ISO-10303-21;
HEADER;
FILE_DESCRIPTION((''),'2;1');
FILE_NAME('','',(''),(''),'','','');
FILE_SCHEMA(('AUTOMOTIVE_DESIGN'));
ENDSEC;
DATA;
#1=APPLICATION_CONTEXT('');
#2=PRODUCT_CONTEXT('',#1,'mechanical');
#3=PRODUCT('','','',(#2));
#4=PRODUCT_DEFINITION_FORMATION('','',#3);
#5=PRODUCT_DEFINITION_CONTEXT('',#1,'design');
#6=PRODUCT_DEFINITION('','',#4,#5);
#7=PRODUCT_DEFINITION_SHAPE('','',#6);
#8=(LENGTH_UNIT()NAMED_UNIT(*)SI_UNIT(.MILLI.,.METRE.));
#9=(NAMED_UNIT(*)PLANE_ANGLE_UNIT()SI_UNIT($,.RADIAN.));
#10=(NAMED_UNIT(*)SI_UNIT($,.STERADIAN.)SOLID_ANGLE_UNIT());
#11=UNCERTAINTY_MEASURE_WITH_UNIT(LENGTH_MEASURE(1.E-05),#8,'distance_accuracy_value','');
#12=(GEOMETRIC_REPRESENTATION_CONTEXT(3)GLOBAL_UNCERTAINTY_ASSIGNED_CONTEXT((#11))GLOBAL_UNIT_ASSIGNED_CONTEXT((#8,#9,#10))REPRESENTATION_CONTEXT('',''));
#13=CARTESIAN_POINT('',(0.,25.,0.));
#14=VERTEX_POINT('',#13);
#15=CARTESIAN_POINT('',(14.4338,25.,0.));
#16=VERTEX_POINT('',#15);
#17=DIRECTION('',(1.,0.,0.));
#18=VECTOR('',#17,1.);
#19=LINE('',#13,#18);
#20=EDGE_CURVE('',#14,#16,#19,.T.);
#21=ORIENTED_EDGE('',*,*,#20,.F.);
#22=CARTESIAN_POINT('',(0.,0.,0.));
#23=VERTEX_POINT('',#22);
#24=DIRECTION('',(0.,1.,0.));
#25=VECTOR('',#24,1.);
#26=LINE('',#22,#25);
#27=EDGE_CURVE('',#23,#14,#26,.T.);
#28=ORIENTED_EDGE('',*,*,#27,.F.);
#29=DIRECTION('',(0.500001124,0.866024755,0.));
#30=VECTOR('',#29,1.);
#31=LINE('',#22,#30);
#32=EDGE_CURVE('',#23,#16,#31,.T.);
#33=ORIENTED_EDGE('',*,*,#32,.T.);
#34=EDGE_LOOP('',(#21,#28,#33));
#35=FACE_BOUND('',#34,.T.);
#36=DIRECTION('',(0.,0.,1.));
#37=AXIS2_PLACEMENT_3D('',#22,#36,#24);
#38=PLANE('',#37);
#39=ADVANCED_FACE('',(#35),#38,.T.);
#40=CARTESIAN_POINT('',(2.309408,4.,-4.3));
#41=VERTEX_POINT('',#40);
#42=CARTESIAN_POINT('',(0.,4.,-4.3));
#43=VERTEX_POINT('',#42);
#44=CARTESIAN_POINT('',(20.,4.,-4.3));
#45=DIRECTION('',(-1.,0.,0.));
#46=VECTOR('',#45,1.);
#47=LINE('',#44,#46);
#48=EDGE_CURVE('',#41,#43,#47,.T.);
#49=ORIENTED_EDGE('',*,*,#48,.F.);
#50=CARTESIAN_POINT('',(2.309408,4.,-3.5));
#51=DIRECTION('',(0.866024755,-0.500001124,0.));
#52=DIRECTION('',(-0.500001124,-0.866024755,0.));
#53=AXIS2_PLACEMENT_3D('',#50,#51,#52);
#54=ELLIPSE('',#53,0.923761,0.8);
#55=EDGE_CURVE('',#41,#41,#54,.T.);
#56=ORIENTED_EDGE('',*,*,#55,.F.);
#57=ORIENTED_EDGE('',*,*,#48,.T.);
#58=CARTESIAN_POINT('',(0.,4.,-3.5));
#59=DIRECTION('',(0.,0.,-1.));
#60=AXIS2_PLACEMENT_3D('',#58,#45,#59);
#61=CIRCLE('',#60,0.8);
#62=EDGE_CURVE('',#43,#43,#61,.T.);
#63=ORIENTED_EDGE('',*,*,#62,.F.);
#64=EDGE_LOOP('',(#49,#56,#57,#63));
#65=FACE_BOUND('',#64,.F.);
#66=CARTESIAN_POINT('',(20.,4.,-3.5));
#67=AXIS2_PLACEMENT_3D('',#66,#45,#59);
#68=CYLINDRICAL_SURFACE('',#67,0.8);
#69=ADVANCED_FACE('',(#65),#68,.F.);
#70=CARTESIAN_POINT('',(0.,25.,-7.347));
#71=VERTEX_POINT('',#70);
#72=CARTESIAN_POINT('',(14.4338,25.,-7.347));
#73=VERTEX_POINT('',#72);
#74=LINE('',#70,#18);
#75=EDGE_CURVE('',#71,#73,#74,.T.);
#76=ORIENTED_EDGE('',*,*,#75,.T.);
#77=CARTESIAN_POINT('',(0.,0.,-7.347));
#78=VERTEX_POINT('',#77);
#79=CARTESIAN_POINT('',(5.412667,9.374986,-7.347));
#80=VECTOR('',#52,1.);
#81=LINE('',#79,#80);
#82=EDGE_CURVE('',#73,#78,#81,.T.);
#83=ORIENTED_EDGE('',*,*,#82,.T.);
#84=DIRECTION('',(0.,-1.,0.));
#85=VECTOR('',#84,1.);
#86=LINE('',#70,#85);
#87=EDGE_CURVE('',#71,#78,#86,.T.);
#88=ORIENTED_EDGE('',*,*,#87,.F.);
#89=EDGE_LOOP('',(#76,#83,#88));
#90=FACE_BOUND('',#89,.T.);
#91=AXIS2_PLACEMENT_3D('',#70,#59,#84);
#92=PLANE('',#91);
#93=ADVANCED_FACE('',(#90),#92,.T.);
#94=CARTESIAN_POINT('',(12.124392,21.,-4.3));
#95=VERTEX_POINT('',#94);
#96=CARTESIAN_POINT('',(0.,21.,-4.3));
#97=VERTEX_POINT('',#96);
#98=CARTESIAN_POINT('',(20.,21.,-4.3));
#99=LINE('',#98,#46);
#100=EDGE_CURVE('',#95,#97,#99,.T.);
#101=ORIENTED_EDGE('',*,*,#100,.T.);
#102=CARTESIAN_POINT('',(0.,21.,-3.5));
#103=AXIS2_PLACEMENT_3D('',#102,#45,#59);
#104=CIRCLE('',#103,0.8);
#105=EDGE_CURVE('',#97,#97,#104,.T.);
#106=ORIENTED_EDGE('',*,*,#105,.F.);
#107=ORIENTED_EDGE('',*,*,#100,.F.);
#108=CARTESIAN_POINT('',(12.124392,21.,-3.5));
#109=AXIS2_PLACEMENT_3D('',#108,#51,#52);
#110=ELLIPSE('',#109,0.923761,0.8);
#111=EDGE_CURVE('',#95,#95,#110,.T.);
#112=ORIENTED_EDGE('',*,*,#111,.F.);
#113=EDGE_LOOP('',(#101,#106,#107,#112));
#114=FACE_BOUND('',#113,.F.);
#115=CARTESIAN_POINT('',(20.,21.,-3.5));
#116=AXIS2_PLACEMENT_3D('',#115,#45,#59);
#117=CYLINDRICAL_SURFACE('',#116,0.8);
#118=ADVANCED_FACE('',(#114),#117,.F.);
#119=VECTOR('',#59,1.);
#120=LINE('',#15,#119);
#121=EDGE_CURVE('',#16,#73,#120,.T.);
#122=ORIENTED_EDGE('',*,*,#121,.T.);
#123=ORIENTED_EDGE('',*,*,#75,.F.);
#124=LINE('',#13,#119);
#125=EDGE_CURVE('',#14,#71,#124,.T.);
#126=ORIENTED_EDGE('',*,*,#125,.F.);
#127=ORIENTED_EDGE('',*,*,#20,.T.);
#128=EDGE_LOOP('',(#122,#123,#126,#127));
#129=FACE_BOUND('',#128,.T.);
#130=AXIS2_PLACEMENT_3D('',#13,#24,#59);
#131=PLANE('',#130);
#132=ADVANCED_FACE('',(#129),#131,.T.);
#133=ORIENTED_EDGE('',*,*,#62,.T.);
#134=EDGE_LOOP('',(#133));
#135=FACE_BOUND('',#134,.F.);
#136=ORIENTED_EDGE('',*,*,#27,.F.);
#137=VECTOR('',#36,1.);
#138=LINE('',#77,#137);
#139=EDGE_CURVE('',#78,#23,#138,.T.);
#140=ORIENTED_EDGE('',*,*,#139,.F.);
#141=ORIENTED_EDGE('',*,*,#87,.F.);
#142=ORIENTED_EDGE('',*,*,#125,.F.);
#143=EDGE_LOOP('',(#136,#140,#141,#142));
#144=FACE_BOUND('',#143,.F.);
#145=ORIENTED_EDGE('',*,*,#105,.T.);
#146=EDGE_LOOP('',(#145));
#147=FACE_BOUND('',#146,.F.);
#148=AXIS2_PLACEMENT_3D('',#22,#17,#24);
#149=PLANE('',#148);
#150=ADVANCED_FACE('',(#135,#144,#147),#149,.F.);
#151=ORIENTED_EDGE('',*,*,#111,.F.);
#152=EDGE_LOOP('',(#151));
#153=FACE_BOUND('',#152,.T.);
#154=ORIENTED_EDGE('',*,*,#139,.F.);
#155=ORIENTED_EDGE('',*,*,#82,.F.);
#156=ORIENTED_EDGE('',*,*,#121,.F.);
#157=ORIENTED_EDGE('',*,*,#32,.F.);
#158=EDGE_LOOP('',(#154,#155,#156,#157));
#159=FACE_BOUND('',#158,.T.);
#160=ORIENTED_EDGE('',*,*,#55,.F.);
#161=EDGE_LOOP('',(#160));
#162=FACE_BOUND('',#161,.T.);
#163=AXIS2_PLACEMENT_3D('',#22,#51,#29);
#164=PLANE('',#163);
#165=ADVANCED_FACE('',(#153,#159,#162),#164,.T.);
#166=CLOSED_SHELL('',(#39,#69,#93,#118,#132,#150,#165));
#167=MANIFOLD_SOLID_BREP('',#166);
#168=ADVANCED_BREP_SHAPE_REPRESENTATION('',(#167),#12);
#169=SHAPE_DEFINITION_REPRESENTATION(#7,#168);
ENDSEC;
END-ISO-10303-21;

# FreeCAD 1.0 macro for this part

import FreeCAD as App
import Part
import Sketcher
Q = App.Units.Quantity

doc = App.newDocument("Part")
params = doc.addObject("Spreadsheet::Sheet", "Params")
for row, (alias, value) in enumerate([
    ("sketch1_width", "25 mm"),
    ("pad1_length", "20 mm"),
    ("sketch2_diameter", "1.6 mm"),
    ("hole_diameter", "1.6 mm"),
    ("sketch3_width", "20 mm"),
    ("sketch3_height", "25 mm"),
    ("pocket1_length", "10 mm"),
], start=1):
    params.set(f"A{row}", alias)
    params.set(f"B{row}", "=" + value)
    params.setAlias(f"B{row}", alias)

body = doc.addObject("PartDesign::Body", "Body")

# Sketch on YZ plane
sketch1 = doc.addObject("Sketcher::SketchObject", "Sketch")
body.addObject(sketch1)
sketch1.AttachmentSupport = (doc.YZ_Plane, [""])
sketch1.MapMode = "FlatFace"
sketch1.addGeometry([
    Part.LineSegment(App.Vector(25, 0, 0), App.Vector(0, 0, 0)),
    Part.LineSegment(App.Vector(0, 0, 0), App.Vector(0, -7.347, 0)),
    Part.LineSegment(App.Vector(0, -7.347, 0), App.Vector(25, -7.347, 0)),
    Part.LineSegment(App.Vector(25, -7.347, 0), App.Vector(25, 0, 0)),
], False)
sketch1.addConstraint([
    Sketcher.Constraint("Coincident", 0, 2, 1, 1),
    Sketcher.Constraint("Coincident", 1, 2, 2, 1),
    Sketcher.Constraint("Coincident", 2, 2, 3, 1),
    Sketcher.Constraint("Coincident", 3, 2, 0, 1),
    Sketcher.Constraint("Horizontal", 0),
    Sketcher.Constraint("Vertical", 1),
    Sketcher.Constraint("Horizontal", 2),
    Sketcher.Constraint("Vertical", 3),
    Sketcher.Constraint("Coincident", 0, 2, -1, 1),
    Sketcher.Constraint("DistanceX", 0, 2, 0, 1, Q("25 mm")),
    Sketcher.Constraint("DistanceY", 1, 2, 1, 1, Q("7.347 mm")),
])
sketch1.setExpression("Constraints[9]", "Params.sketch1_width")
pad1 = doc.addObject("PartDesign::Pad", "Pad")
body.addObject(pad1)
pad1.Profile = sketch1
pad1.setExpression("Length", "Params.pad1_length")

# Sketch on YZ plane
sketch2 = doc.addObject("Sketcher::SketchObject", "Sketch001")
body.addObject(sketch2)
sketch2.AttachmentSupport = (doc.YZ_Plane, [""])
sketch2.MapMode = "FlatFace"
sketch2.AttachmentOffset = App.Placement(App.Vector(0, 0, 20), App.Rotation())
sketch2.addGeometry([
    Part.Circle(App.Vector(4, -3.5, 0), App.Vector(0, 0, 1), 0.8),
    Part.Circle(App.Vector(21, -3.5, 0), App.Vector(0, 0, 1), 0.8),
], False)
sketch2.addConstraint([
    Sketcher.Constraint("Equal", 0, 1),
    Sketcher.Constraint("Horizontal", 0, 3, 1, 3),
    Sketcher.Constraint("Diameter", 0, Q("1.6 mm")),
    Sketcher.Constraint("DistanceX", -1, 1, 0, 3, Q("4 mm")),
    Sketcher.Constraint("DistanceX", -1, 1, 1, 3, Q("21 mm")),
    Sketcher.Constraint("DistanceY", 0, 3, -1, 1, Q("3.5 mm")),
])
sketch2.setExpression("Constraints[2]", "Params.sketch2_diameter")
doc.recompute()
hole = doc.addObject("PartDesign::Hole", "Hole")
body.addObject(hole)
hole.Profile = sketch2
hole.ThreadType = "None"
hole.setExpression("Diameter", "Params.hole_diameter")
hole.DepthType = "ThroughAll"

# Sketch on XY plane
sketch3 = doc.addObject("Sketcher::SketchObject", "Sketch002")
body.addObject(sketch3)
sketch3.AttachmentSupport = (doc.XY_Plane, [""])
sketch3.MapMode = "FlatFace"
sketch3.addGeometry([
    Part.LineSegment(App.Vector(14.4338, 25, 0), App.Vector(0, 0, 0)),
    Part.LineSegment(App.Vector(0, 0, 0), App.Vector(20, 0, 0)),
    Part.LineSegment(App.Vector(20, 0, 0), App.Vector(20, 25, 0)),
    Part.LineSegment(App.Vector(20, 25, 0), App.Vector(14.4338, 25, 0)),
], False)
sketch3.addConstraint([
    Sketcher.Constraint("Coincident", 0, 2, 1, 1),
    Sketcher.Constraint("Coincident", 1, 2, 2, 1),
    Sketcher.Constraint("Coincident", 2, 2, 3, 1),
    Sketcher.Constraint("Coincident", 3, 2, 0, 1),
    Sketcher.Constraint("Horizontal", 1),
    Sketcher.Constraint("Vertical", 2),
    Sketcher.Constraint("Horizontal", 3),
    Sketcher.Constraint("Coincident", 0, 2, -1, 1),
    Sketcher.Constraint("DistanceX", 1, 1, 1, 2, Q("20 mm")),
    Sketcher.Constraint("DistanceY", 2, 1, 2, 2, Q("25 mm")),
    Sketcher.Constraint("Angle", 0, Q("-120 deg")),
])
sketch3.setExpression("Constraints[8]", "Params.sketch3_width")
sketch3.setExpression("Constraints[9]", "Params.sketch3_height")
pocket1 = doc.addObject("PartDesign::Pocket", "Pocket")
body.addObject(pocket1)
pocket1.Profile = sketch3
pocket1.setExpression("Length", "Params.pocket1_length")

doc.recompute()
